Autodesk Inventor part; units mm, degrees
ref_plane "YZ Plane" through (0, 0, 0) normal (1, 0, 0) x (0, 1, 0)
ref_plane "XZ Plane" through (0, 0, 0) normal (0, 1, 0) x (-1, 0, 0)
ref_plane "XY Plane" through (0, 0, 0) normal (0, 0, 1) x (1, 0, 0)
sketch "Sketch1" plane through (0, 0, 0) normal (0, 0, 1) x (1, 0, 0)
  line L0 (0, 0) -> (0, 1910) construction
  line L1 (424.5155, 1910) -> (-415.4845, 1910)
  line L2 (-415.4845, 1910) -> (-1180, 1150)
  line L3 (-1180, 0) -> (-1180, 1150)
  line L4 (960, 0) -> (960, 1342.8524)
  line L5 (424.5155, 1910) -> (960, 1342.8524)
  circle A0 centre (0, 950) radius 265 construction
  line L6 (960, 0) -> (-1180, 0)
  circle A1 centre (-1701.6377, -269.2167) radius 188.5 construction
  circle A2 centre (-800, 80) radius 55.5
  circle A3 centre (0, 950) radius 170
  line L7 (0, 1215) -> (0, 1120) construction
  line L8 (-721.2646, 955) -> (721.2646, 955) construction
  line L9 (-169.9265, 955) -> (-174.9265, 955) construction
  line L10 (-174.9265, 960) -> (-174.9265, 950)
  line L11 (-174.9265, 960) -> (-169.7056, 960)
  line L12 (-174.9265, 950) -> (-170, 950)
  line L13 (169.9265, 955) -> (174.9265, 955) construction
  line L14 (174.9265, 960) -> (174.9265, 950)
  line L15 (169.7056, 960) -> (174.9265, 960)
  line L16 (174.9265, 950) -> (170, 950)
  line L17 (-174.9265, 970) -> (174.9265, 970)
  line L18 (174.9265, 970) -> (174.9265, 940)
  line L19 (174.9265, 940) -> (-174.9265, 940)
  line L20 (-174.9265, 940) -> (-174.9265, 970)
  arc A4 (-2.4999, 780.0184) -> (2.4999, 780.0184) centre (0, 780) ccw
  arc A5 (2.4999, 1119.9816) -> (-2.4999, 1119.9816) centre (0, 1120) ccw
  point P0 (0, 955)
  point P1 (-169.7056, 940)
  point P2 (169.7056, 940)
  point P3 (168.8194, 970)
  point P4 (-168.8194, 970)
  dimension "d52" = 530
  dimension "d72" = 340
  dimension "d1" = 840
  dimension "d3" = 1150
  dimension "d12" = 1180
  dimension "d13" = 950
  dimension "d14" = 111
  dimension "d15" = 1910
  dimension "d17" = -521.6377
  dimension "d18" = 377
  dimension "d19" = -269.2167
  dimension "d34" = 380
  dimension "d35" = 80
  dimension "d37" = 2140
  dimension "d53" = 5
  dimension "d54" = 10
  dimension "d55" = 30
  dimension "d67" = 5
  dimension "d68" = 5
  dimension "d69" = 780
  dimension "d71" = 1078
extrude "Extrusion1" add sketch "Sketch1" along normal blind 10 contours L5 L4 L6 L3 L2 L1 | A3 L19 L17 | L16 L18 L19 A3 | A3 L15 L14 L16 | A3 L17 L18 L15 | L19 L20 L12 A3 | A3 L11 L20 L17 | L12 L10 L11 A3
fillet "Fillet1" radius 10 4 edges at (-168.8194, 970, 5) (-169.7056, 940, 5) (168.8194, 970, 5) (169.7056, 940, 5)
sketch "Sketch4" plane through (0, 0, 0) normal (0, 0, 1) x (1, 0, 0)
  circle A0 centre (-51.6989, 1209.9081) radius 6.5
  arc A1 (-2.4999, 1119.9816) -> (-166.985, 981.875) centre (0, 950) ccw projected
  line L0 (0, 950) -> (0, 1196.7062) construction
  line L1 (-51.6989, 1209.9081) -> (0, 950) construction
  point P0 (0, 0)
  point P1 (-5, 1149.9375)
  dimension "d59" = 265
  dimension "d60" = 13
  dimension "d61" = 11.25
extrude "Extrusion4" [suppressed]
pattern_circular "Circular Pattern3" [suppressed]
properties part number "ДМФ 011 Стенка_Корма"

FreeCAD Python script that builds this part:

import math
import FreeCAD as App
import Part
import Sketcher

V = App.Vector
Q = App.Units.Quantity


def edges_at(feature, points):
    """Names of the edges that pass closest to the given points."""
    edges = feature.Shape.Edges
    near = lambda p: min(range(len(edges)), key=lambda i: edges[i].distToShape(Part.Vertex(*p))[0])
    return sorted({f"Edge{near(p) + 1}" for p in points})


def add_polygon(sketch, points):
    """Adds a closed chain of lines whose ends are joined by coincident constraints."""
    first, n = sketch.GeometryCount, len(points)
    for a, b in zip(points, points[1:] + points[:1]):
        sketch.addGeometry(Part.LineSegment(App.Vector(*a, 0), App.Vector(*b, 0)), False)
    for i in range(n):
        sketch.addConstraint(Sketcher.Constraint("Coincident", first + i, 2, first + (i + 1) % n, 1))

doc = App.newDocument("Part")
params = doc.addObject("Spreadsheet::Sheet", "Params")
for row, (alias, value) in enumerate([
    ("sketch1_diameter", "111 mm"),
    ("sketch1_radius", "170 mm"),
    ("sketch1_radius2", "2.5 mm"),
    ("sketch1_width", "840 mm"),
    ("sketch1_width2", "2140 mm"),
    ("pad1_length", "10 mm"),
    ("fillet_radius", "10 mm"),
], start=1):
    params.set(f"A{row}", alias)
    params.set(f"B{row}", "=" + value)
    params.setAlias(f"B{row}", alias)

body = doc.addObject("PartDesign::Body", "Body")

# Sketch on XY plane
sketch1 = body.newObject("Sketcher::SketchObject", "Sketch")
sketch1.AttachmentSupport = (doc.getObject("XY_Plane"), [""])
sketch1.MapMode = "FlatFace"
add_polygon(sketch1, [(960, 1342.9), (424.5, 1910), (-415.5, 1910), (-1180, 1150), (-1180, 0), (960, 0)])  # lines 0-5
sketch1.addGeometry(Part.Circle(V(-800, 80, 0), V(0, 0, 1), 55.5), False)  # 6
sketch1.addGeometry(Part.ArcOfCircle(Part.Circle(V(0, 950, 0), V(0, 0, 1), 170), math.radians(7), math.radians(89)), False)  # 7
sketch1.addGeometry(Part.LineSegment(V(168.8, 970, 0), V(-168.8, 970, 0)), False)  # 8
sketch1.addGeometry(Part.ArcOfCircle(Part.Circle(V(0, 950, 0), V(0, 0, 1), 170), math.radians(91), math.radians(173)), False)  # 9
sketch1.addGeometry(Part.ArcOfCircle(Part.Circle(V(0, 1120, 0), V(0, 0, 1), 2.5), math.radians(0), math.radians(180)), False)  # 10
sketch1.addGeometry(Part.ArcOfCircle(Part.Circle(V(0, 950, 0), V(0, 0, 1), 170), math.radians(-177), math.radians(-91)), False)  # 11
sketch1.addGeometry(Part.LineSegment(V(-169.7, 940, 0), V(169.7, 940, 0)), False)  # 12
sketch1.addGeometry(Part.ArcOfCircle(Part.Circle(V(0, 950, 0), V(0, 0, 1), 170), math.radians(-89), math.radians(-3)), False)  # 13
sketch1.addGeometry(Part.ArcOfCircle(Part.Circle(V(0, 780, 0), V(0, 0, 1), 2.5), math.radians(180), math.radians(360)), False)  # 14
sketch1.addConstraint([
    Sketcher.Constraint("Coincident", 7, 1, 8, 1),
    Sketcher.Constraint("Coincident", 8, 2, 9, 2),
    Sketcher.Constraint("Coincident", 9, 1, 10, 2),
    Sketcher.Constraint("Coincident", 10, 1, 7, 2),
    Sketcher.Constraint("Coincident", 11, 1, 12, 1),
    Sketcher.Constraint("Coincident", 12, 2, 13, 2),
    Sketcher.Constraint("Coincident", 13, 1, 14, 2),
    Sketcher.Constraint("Coincident", 14, 1, 11, 2),
    Sketcher.Constraint("Horizontal", 1),
    Sketcher.Constraint("Vertical", 3),
    Sketcher.Constraint("Horizontal", 4),
    Sketcher.Constraint("Vertical", 5),
    Sketcher.Constraint("Horizontal", 8),
    Sketcher.Constraint("Horizontal", 12),
    Sketcher.Constraint("Coincident", 9, 3, 7, 3),
    Sketcher.Constraint("Coincident", 11, 3, 7, 3),
    Sketcher.Constraint("Coincident", 13, 3, 7, 3),
    Sketcher.Constraint("Equal", 7, 9),
    Sketcher.Constraint("Equal", 9, 11),
    Sketcher.Constraint("Equal", 11, 13),
    Sketcher.Constraint("Equal", 10, 14),
    Sketcher.Constraint("Symmetric", 9, 1, 10, 1, -2),
    Sketcher.Constraint("PointOnObject", 14, 3, -2),
    Sketcher.Constraint("PointOnObject", 3, 2, -1),
    Sketcher.Constraint("Diameter", 6, Q("111 mm")),
    Sketcher.Constraint("Radius", 7, Q("170 mm")),
    Sketcher.Constraint("Radius", 10, Q("2.5 mm")),
    Sketcher.Constraint("DistanceX", 1, 2, 1, 1, Q("840 mm")),
    Sketcher.Constraint("DistanceX", 4, 1, 4, 2, Q("2140 mm")),
    Sketcher.Constraint("DistanceY", 3, 2, 3, 1, Q("1150 mm")),
    Sketcher.Constraint("Distance", 0, Q("780 mm")),
    Sketcher.Constraint("Distance", 2, Q("1078 mm")),
    Sketcher.Constraint("DistanceY", -1, 1, 6, 3, Q("80 mm")),
    Sketcher.Constraint("DistanceY", -1, 1, 7, 3, Q("950 mm")),
    Sketcher.Constraint("DistanceY", -1, 1, 14, 3, Q("780 mm")),
    Sketcher.Constraint("DistanceY", -1, 1, 0, 2, Q("1910 mm")),
    Sketcher.Constraint("DistanceX", 2, 2, -1, 1, Q("1180 mm")),
    Sketcher.Constraint("DistanceY", 14, 3, 10, 3, Q("340 mm")),
    Sketcher.Constraint("DistanceX", 2, 2, 6, 3, Q("380 mm")),
    Sketcher.Constraint("DistanceY", 11, 1, 8, 2, Q("30 mm")),
    Sketcher.Constraint("DistanceY", 11, 1, 7, 3, Q("10 mm")),
])
sketch1.setExpression("Constraints[30]", "Params.sketch1_diameter")
sketch1.setExpression("Constraints[31]", "Params.sketch1_radius")
sketch1.setExpression("Constraints[32]", "Params.sketch1_radius2")
sketch1.setExpression("Constraints[33]", "Params.sketch1_width")
sketch1.setExpression("Constraints[34]", "Params.sketch1_width2")
pad1 = body.newObject("PartDesign::Pad", "Pad")
pad1.Profile = sketch1
pad1.setExpression("Length", "Params.pad1_length")
doc.recompute()

fillet = body.newObject("PartDesign::Fillet", "Fillet")
fillet.Base = (pad1, edges_at(pad1, [
    (-168.819, 970, 5),
    (-169.706, 940, 5),
    (168.819, 970, 5),
    (169.706, 940, 5),
]))
fillet.setExpression("Radius", "Params.fillet_radius")

doc.recompute()
